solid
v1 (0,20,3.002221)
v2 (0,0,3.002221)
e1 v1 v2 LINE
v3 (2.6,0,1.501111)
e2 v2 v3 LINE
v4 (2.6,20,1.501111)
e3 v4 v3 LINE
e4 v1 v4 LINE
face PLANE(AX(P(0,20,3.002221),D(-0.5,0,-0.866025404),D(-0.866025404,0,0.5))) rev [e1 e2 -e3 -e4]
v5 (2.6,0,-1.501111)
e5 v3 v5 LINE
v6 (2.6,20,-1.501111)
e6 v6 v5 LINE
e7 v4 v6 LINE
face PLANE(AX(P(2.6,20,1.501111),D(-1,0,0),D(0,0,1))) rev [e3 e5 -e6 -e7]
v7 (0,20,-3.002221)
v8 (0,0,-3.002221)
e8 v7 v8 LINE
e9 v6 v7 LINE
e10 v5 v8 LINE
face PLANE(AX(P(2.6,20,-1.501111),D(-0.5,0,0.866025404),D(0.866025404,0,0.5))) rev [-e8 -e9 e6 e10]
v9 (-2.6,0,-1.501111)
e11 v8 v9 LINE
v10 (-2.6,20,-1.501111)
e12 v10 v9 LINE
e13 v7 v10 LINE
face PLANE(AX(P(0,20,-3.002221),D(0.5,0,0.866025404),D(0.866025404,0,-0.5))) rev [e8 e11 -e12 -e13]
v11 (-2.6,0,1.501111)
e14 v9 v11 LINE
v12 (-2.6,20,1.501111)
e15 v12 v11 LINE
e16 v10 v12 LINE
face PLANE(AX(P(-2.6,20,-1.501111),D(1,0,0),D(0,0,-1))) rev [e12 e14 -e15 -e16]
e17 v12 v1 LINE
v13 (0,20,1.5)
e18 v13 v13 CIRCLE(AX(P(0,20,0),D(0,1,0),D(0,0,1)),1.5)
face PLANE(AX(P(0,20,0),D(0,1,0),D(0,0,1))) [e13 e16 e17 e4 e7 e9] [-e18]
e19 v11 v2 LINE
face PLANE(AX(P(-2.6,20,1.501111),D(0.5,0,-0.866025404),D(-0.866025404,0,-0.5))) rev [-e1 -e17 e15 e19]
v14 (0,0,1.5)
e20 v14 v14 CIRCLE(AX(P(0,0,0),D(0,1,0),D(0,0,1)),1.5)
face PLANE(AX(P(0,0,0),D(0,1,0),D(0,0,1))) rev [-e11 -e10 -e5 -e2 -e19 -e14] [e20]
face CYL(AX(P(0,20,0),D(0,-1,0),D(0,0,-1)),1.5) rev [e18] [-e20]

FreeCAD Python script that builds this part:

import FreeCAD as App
import Part
import Sketcher

V = App.Vector
Q = App.Units.Quantity

doc = App.newDocument("Part")
params = doc.addObject("Spreadsheet::Sheet", "Params")
for row, (alias, value) in enumerate([
    ("sketch1_diameter", "3 mm"),
    ("pad1_length", "20 mm"),
], start=1):
    params.set(f"A{row}", alias)
    params.set(f"B{row}", "=" + value)
    params.setAlias(f"B{row}", alias)

body = doc.addObject("PartDesign::Body", "Body")

# Sketch on XZ plane
sketch1 = doc.addObject("Sketcher::SketchObject", "Sketch")
body.addObject(sketch1)
sketch1.AttachmentSupport = (doc.XZ_Plane, [""])
sketch1.MapMode = "FlatFace"
sketch1.addGeometry(Part.LineSegment(V(0, -3.002221, 0), V(-2.6, -1.501111, 0)), False)
sketch1.addGeometry(Part.LineSegment(V(-2.6, -1.501111, 0), V(-2.6, 1.501111, 0)), False)
sketch1.addGeometry(Part.LineSegment(V(-2.6, 1.501111, 0), V(0, 3.002221, 0)), False)
sketch1.addGeometry(Part.LineSegment(V(0, 3.002221, 0), V(2.6, 1.501111, 0)), False)
sketch1.addGeometry(Part.LineSegment(V(2.6, 1.501111, 0), V(2.6, -1.501111, 0)), False)
sketch1.addGeometry(Part.LineSegment(V(2.6, -1.501111, 0), V(0, -3.002221, 0)), False)
sketch1.addGeometry(Part.Circle(V(0, 0, 0), V(0, 0, 1), 1.5), False)
sketch1.addConstraint(Sketcher.Constraint("Coincident", 0, 2, 1, 1))
sketch1.addConstraint(Sketcher.Constraint("Coincident", 1, 2, 2, 1))
sketch1.addConstraint(Sketcher.Constraint("Coincident", 2, 2, 3, 1))
sketch1.addConstraint(Sketcher.Constraint("Coincident", 3, 2, 4, 1))
sketch1.addConstraint(Sketcher.Constraint("Coincident", 4, 2, 5, 1))
sketch1.addConstraint(Sketcher.Constraint("Coincident", 5, 2, 0, 1))
sketch1.addConstraint(Sketcher.Constraint("Vertical", 1))
sketch1.addConstraint(Sketcher.Constraint("Vertical", 4))
sketch1.addConstraint(Sketcher.Constraint("Coincident", 6, 3, -1, 1))
sketch1.addConstraint(Sketcher.Constraint("Symmetric", 0, 2, 3, 2, -1, 1))
sketch1.addConstraint(Sketcher.Constraint("Symmetric", 2, 2, 5, 2, -1, 1))
sketch1.addConstraint(Sketcher.Constraint("PointOnObject", 2, 2, -2))
sketch1.addConstraint(Sketcher.Constraint("Parallel", 2, 5))
sketch1.addConstraint(Sketcher.Constraint("Horizontal", 1, 2, 3, 2))
sketch1.addConstraint(Sketcher.Constraint("Diameter", 6, Q("3 mm")))
sketch1.addConstraint(Sketcher.Constraint("Angle", 0, Q("150 deg")))
sketch1.addConstraint(Sketcher.Constraint("DistanceX", 0, 2, -1, 1, Q("2.6 mm")))
sketch1.addConstraint(Sketcher.Constraint("DistanceY", 1, 1, 1, 2, Q("3.002221 mm")))
sketch1.setExpression("Constraints[14]", "Params.sketch1_diameter")
pad1 = doc.addObject("PartDesign::Pad", "Pad")
body.addObject(pad1)
pad1.Profile = sketch1
pad1.setExpression("Length", "Params.pad1_length")
pad1.Reversed = True

doc.recompute()
